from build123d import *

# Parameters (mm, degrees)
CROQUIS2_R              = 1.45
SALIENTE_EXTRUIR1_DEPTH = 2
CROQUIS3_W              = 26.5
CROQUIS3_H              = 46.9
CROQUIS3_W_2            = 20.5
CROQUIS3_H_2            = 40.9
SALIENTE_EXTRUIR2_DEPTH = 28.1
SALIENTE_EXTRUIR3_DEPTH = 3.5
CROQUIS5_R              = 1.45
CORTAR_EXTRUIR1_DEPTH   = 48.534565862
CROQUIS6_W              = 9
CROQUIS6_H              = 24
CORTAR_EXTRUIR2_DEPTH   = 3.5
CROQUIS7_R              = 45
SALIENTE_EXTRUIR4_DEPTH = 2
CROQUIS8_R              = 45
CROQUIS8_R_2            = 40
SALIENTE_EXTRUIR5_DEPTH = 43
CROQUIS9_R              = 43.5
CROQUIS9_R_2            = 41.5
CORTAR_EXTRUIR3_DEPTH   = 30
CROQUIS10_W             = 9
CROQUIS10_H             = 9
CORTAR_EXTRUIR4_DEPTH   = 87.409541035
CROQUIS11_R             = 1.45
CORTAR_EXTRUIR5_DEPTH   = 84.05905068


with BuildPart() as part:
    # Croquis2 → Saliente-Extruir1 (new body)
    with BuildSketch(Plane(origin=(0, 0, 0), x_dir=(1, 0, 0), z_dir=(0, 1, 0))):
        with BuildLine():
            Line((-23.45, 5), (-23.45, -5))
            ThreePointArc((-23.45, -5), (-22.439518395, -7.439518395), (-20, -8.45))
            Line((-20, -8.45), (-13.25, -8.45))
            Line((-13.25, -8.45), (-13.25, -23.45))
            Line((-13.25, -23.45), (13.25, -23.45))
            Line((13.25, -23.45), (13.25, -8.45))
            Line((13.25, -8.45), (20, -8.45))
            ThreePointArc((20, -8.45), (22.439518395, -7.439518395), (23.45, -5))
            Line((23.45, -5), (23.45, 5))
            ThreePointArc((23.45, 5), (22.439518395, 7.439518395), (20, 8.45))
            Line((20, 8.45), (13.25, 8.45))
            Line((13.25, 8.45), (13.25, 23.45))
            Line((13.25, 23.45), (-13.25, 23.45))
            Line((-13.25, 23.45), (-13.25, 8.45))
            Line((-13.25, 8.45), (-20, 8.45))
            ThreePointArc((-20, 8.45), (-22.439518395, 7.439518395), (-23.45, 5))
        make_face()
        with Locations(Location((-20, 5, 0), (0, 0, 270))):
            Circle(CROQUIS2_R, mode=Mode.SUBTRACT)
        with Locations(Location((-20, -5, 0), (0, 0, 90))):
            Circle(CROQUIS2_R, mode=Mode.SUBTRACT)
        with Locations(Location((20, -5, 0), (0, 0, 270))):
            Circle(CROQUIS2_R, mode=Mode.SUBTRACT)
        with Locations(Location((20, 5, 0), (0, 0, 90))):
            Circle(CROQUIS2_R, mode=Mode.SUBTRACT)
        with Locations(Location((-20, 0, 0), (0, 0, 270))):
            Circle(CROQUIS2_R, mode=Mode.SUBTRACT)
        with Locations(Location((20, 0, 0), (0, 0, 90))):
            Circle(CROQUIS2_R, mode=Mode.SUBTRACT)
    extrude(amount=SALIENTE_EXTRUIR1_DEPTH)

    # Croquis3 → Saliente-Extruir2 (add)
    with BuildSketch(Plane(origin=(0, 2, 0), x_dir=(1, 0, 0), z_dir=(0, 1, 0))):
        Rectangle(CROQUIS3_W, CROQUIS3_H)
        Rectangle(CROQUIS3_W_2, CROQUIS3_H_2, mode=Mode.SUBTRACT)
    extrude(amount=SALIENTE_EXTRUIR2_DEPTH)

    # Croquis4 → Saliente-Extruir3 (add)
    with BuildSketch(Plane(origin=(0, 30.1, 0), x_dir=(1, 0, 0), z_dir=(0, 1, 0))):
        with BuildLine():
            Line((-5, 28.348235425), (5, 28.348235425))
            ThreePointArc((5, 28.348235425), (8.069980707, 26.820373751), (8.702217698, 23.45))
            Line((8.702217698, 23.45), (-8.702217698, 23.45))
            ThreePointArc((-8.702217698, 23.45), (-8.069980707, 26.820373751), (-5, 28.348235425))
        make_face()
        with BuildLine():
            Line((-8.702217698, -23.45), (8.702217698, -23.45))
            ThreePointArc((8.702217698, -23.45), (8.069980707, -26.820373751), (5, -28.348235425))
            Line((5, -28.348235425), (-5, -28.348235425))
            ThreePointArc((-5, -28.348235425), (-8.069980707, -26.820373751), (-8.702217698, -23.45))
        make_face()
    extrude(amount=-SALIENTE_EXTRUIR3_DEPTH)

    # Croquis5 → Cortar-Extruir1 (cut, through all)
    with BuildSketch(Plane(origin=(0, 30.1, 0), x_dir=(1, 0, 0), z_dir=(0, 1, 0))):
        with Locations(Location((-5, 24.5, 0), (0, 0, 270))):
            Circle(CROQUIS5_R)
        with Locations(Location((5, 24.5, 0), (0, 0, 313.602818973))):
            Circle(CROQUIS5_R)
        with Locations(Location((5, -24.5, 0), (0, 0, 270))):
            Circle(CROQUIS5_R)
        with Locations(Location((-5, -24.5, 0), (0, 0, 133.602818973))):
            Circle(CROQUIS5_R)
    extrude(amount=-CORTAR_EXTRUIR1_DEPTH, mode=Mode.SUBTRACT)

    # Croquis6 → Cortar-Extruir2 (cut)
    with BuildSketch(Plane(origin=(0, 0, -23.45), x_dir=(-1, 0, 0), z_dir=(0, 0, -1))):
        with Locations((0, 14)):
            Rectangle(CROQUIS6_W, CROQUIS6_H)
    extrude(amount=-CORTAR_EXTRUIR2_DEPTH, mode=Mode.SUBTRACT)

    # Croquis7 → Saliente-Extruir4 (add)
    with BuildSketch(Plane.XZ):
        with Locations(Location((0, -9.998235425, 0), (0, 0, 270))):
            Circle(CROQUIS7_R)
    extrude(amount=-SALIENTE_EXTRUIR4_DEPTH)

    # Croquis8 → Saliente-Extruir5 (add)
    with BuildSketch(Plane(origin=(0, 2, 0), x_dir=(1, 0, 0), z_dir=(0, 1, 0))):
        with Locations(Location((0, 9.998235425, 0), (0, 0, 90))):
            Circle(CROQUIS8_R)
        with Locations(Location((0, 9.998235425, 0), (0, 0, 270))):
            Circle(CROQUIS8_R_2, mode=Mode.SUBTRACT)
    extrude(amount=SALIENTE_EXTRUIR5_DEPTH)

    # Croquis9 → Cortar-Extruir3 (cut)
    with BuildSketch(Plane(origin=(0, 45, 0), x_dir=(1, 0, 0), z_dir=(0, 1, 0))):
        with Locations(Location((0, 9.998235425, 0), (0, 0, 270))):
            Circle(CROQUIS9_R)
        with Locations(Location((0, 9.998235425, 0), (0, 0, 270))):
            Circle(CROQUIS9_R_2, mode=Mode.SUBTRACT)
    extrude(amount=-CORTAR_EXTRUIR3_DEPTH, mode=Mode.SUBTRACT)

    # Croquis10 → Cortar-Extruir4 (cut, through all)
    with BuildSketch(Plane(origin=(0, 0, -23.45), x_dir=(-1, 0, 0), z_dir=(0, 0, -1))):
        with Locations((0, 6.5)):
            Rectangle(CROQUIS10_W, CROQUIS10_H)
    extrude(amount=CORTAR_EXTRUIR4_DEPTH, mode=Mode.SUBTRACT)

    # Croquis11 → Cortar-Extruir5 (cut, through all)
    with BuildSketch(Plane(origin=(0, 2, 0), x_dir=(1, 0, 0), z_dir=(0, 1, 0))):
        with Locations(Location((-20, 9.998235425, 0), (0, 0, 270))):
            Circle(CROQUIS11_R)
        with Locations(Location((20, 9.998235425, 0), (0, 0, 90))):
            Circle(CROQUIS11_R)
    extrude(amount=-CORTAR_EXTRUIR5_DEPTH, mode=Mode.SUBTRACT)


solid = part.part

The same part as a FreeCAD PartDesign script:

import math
import FreeCAD as App
import Part
import Sketcher
Q = App.Units.Quantity


def add_polygon(sketch, points):
    """Adds a closed chain of lines whose ends are joined by coincident constraints."""
    first, n = sketch.GeometryCount, len(points)
    for a, b in zip(points, points[1:] + points[:1]):
        sketch.addGeometry(Part.LineSegment(App.Vector(*a, 0), App.Vector(*b, 0)), False)
    for i in range(n):
        sketch.addConstraint(Sketcher.Constraint("Coincident", first + i, 2, first + (i + 1) % n, 1))

doc = App.newDocument("Part")
params = doc.addObject("Spreadsheet::Sheet", "Params")
for row, (alias, value) in enumerate([
    ("sketch1_diameter", "2.9 mm"),
    ("sketch1_height", "10 mm"),
    ("sketch1_height2", "15 mm"),
    ("sketch1_radius", "3.45 mm"),
    ("sketch1_width", "26.5 mm"),
    ("pad1_length", "2 mm"),
    ("sketch2_width", "26.5 mm"),
    ("sketch2_width2", "20.5 mm"),
    ("sketch2_height", "46.9 mm"),
    ("sketch2_height2", "40.9 mm"),
    ("pad2_length", "28.1 mm"),
    ("sketch3_width", "10 mm"),
    ("pad3_length", "3.5 mm"),
    ("sketch4_diameter", "2.9 mm"),
    ("sketch5_width", "9 mm"),
    ("sketch5_height", "24 mm"),
    ("pocket2_length", "3.5 mm"),
    ("sketch6_diameter", "90 mm"),
    ("pad4_length", "2 mm"),
    ("sketch7_diameter", "90 mm"),
    ("sketch7_diameter2", "80 mm"),
    ("pad5_length", "43 mm"),
    ("sketch8_diameter", "87 mm"),
    ("sketch8_diameter2", "83 mm"),
    ("pocket3_length", "30 mm"),
    ("sketch9_width", "9 mm"),
    ("sketch10_diameter", "2.9 mm"),
], start=1):
    params.set(f"A{row}", alias)
    params.set(f"B{row}", "=" + value)
    params.setAlias(f"B{row}", alias)

body = doc.addObject("PartDesign::Body", "Body")

# Sketch on XZ plane
sketch1 = body.newObject("Sketcher::SketchObject", "Sketch")
sketch1.AttachmentSupport = (doc.getObject("XZ_Plane"), [""])
sketch1.MapMode = "FlatFace"
sketch1.addGeometry([
    Part.LineSegment(App.Vector(-23.4, -5, 0), App.Vector(-23.4, 5, 0)),  # 0
    Part.ArcOfCircle(Part.Circle(App.Vector(-20, 5, 0), App.Vector(0, 0, 1), 3.5), math.radians(90), math.radians(180)),  # 1
    Part.LineSegment(App.Vector(-20, 8.4, 0), App.Vector(-13.2, 8.4, 0)),  # 2
    Part.LineSegment(App.Vector(-13.2, 8.4, 0), App.Vector(-13.2, 23.4, 0)),  # 3
    Part.LineSegment(App.Vector(-13.2, 23.4, 0), App.Vector(13.2, 23.4, 0)),  # 4
    Part.LineSegment(App.Vector(13.2, 23.4, 0), App.Vector(13.2, 8.4, 0)),  # 5
    Part.LineSegment(App.Vector(13.2, 8.4, 0), App.Vector(20, 8.4, 0)),  # 6
    Part.ArcOfCircle(Part.Circle(App.Vector(20, 5, 0), App.Vector(0, 0, 1), 3.5), math.radians(0), math.radians(90)),  # 7
    Part.LineSegment(App.Vector(23.4, 5, 0), App.Vector(23.4, -5, 0)),  # 8
    Part.ArcOfCircle(Part.Circle(App.Vector(20, -5, 0), App.Vector(0, 0, 1), 3.5), math.radians(-90), math.radians(0)),  # 9
    Part.LineSegment(App.Vector(20, -8.4, 0), App.Vector(13.2, -8.4, 0)),  # 10
    Part.LineSegment(App.Vector(13.2, -8.4, 0), App.Vector(13.2, -23.4, 0)),  # 11
    Part.LineSegment(App.Vector(13.2, -23.4, 0), App.Vector(-13.2, -23.4, 0)),  # 12
    Part.LineSegment(App.Vector(-13.2, -23.4, 0), App.Vector(-13.2, -8.4, 0)),  # 13
    Part.LineSegment(App.Vector(-13.2, -8.4, 0), App.Vector(-20, -8.4, 0)),  # 14
    Part.ArcOfCircle(Part.Circle(App.Vector(-20, -5, 0), App.Vector(0, 0, 1), 3.5), math.radians(180), math.radians(270)),  # 15
    Part.Circle(App.Vector(-20, 5, 0), App.Vector(0, 0, 1), 1.4),  # 16
    Part.Circle(App.Vector(-20, 0, 0), App.Vector(0, 0, 1), 1.4),  # 17
    Part.Circle(App.Vector(20, 5, 0), App.Vector(0, 0, 1), 1.4),  # 18
    Part.Circle(App.Vector(20, 0, 0), App.Vector(0, 0, 1), 1.4),  # 19
    Part.Circle(App.Vector(-20, -5, 0), App.Vector(0, 0, 1), 1.4),  # 20
    Part.Circle(App.Vector(20, -5, 0), App.Vector(0, 0, 1), 1.4),  # 21
], False)
sketch1.addConstraint([
    Sketcher.Constraint("Tangent", 0, 2, 1, 2),
    Sketcher.Constraint("Tangent", 1, 1, 2, 1),
    Sketcher.Constraint("Coincident", 2, 2, 3, 1),
    Sketcher.Constraint("Coincident", 3, 2, 4, 1),
    Sketcher.Constraint("Coincident", 4, 2, 5, 1),
    Sketcher.Constraint("Coincident", 5, 2, 6, 1),
    Sketcher.Constraint("Tangent", 6, 2, 7, 2),
    Sketcher.Constraint("Tangent", 7, 1, 8, 1),
    Sketcher.Constraint("Tangent", 8, 2, 9, 2),
    Sketcher.Constraint("Tangent", 9, 1, 10, 1),
    Sketcher.Constraint("Coincident", 10, 2, 11, 1),
    Sketcher.Constraint("Coincident", 11, 2, 12, 1),
    Sketcher.Constraint("Coincident", 12, 2, 13, 1),
    Sketcher.Constraint("Coincident", 13, 2, 14, 1),
    Sketcher.Constraint("Tangent", 14, 2, 15, 2),
    Sketcher.Constraint("Tangent", 15, 1, 0, 1),
    Sketcher.Constraint("Vertical", 0),
    Sketcher.Constraint("Horizontal", 2),
    Sketcher.Constraint("Vertical", 3),
    Sketcher.Constraint("Horizontal", 4),
    Sketcher.Constraint("Vertical", 5),
    Sketcher.Constraint("Horizontal", 6),
    Sketcher.Constraint("Vertical", 8),
    Sketcher.Constraint("Horizontal", 10),
    Sketcher.Constraint("Vertical", 11),
    Sketcher.Constraint("Horizontal", 12),
    Sketcher.Constraint("Vertical", 13),
    Sketcher.Constraint("Horizontal", 14),
    Sketcher.Constraint("Coincident", 16, 3, 1, 3),
    Sketcher.Constraint("Coincident", 18, 3, 7, 3),
    Sketcher.Constraint("Coincident", 20, 3, 15, 3),
    Sketcher.Constraint("Coincident", 21, 3, 9, 3),
    Sketcher.Constraint("Equal", 1, 7),
    Sketcher.Constraint("Equal", 7, 9),
    Sketcher.Constraint("Equal", 9, 15),
    Sketcher.Constraint("Equal", 16, 17),
    Sketcher.Constraint("Equal", 17, 18),
    Sketcher.Constraint("Equal", 18, 19),
    Sketcher.Constraint("Equal", 19, 20),
    Sketcher.Constraint("Equal", 20, 21),
    Sketcher.Constraint("Symmetric", 1, 3, 9, 3, -1, 1),
    Sketcher.Constraint("Symmetric", 17, 3, 19, 3, -1, 1),
    Sketcher.Constraint("Symmetric", 3, 2, 11, 2, -1, 1),
    Sketcher.Constraint("Symmetric", 5, 2, 13, 2, -1, 1),
    Sketcher.Constraint("Symmetric", 2, 2, 5, 2, -2),
    Sketcher.Constraint("PointOnObject", 17, 3, -1),
    Sketcher.Constraint("Vertical", 16, 3, 17, 3),
    Sketcher.Constraint("Diameter", 16, Q("2.9 mm")),
    Sketcher.Constraint("DistanceY", 0, 1, 0, 2, Q("10 mm")),
    Sketcher.Constraint("DistanceY", 3, 1, 3, 2, Q("15 mm")),
    Sketcher.Constraint("Radius", 1, Q("3.45 mm")),
    Sketcher.Constraint("DistanceX", 4, 1, 4, 2, Q("26.5 mm")),
    Sketcher.Constraint("DistanceX", 1, 3, -1, 1, Q("20 mm")),
])
sketch1.setExpression("Constraints[47]", "Params.sketch1_diameter")
sketch1.setExpression("Constraints[48]", "Params.sketch1_height")
sketch1.setExpression("Constraints[49]", "Params.sketch1_height2")
sketch1.setExpression("Constraints[50]", "Params.sketch1_radius")
sketch1.setExpression("Constraints[51]", "Params.sketch1_width")
pad1 = body.newObject("PartDesign::Pad", "Pad")
pad1.Profile = sketch1
pad1.setExpression("Length", "Params.pad1_length")
pad1.Reversed = True

# Sketch on XZ plane
sketch2 = body.newObject("Sketcher::SketchObject", "Sketch001")
sketch2.AttachmentSupport = (doc.getObject("XZ_Plane"), [""])
sketch2.MapMode = "FlatFace"
sketch2.AttachmentOffset = App.Placement(App.Vector(0, 0, -2), App.Rotation())
add_polygon(sketch2, [(-13, -23), (-13, 23), (13, 23), (13, -23)])  # lines 0-3
add_polygon(sketch2, [(10, 20), (-10, 20), (-10, -20), (10, -20)])  # lines 4-7
sketch2.addConstraint([
    Sketcher.Constraint("Vertical", 0),
    Sketcher.Constraint("Horizontal", 1),
    Sketcher.Constraint("Vertical", 2),
    Sketcher.Constraint("Horizontal", 3),
    Sketcher.Constraint("Horizontal", 4),
    Sketcher.Constraint("Vertical", 5),
    Sketcher.Constraint("Horizontal", 6),
    Sketcher.Constraint("Vertical", 7),
    Sketcher.Constraint("Symmetric", 0, 2, 2, 2, -1, 1),
    Sketcher.Constraint("Symmetric", 4, 2, 6, 2, -1, 1),
    Sketcher.Constraint("DistanceX", 1, 1, 1, 2, Q("26.5 mm")),
    Sketcher.Constraint("DistanceX", 4, 2, 4, 1, Q("20.5 mm")),
    Sketcher.Constraint("DistanceY", 0, 1, 0, 2, Q("46.9 mm")),
    Sketcher.Constraint("DistanceY", 5, 2, 5, 1, Q("40.9 mm")),
])
sketch2.setExpression("Constraints[18]", "Params.sketch2_width")
sketch2.setExpression("Constraints[19]", "Params.sketch2_width2")
sketch2.setExpression("Constraints[20]", "Params.sketch2_height")
sketch2.setExpression("Constraints[21]", "Params.sketch2_height2")
pad2 = body.newObject("PartDesign::Pad", "Pad001")
pad2.Profile = sketch2
pad2.setExpression("Length", "Params.pad2_length")
pad2.Reversed = True

# Sketch on XZ plane
sketch3 = body.newObject("Sketcher::SketchObject", "Sketch002")
sketch3.AttachmentSupport = (doc.getObject("XZ_Plane"), [""])
sketch3.MapMode = "FlatFace"
sketch3.AttachmentOffset = App.Placement(App.Vector(0, 0, -30.1), App.Rotation())
sketch3.addGeometry([
    Part.LineSegment(App.Vector(5, -28.3, 0), App.Vector(-5, -28.3, 0)),  # 0
    Part.ArcOfCircle(Part.Circle(App.Vector(-5, -24.5, 0), App.Vector(0, 0, 1), 3.8), math.radians(164), math.radians(270)),  # 1
    Part.LineSegment(App.Vector(-8.7, -23.4, 0), App.Vector(8.7, -23.4, 0)),  # 2
    Part.ArcOfCircle(Part.Circle(App.Vector(5, -24.5, 0), App.Vector(0, 0, 1), 3.8), math.radians(-90), math.radians(16)),  # 3
    Part.LineSegment(App.Vector(8.7, 23.4, 0), App.Vector(-8.7, 23.4, 0)),  # 4
    Part.ArcOfCircle(Part.Circle(App.Vector(-5, 24.5, 0), App.Vector(0, 0, 1), 3.8), math.radians(90), math.radians(196)),  # 5
    Part.LineSegment(App.Vector(-5, 28.3, 0), App.Vector(5, 28.3, 0)),  # 6
    Part.ArcOfCircle(Part.Circle(App.Vector(5, 24.5, 0), App.Vector(0, 0, 1), 3.8), math.radians(-16), math.radians(90)),  # 7
], False)
sketch3.addConstraint([
    Sketcher.Constraint("Tangent", 0, 2, 1, 2),
    Sketcher.Constraint("Coincident", 1, 1, 2, 1),
    Sketcher.Constraint("Coincident", 2, 2, 3, 2),
    Sketcher.Constraint("Tangent", 3, 1, 0, 1),
    Sketcher.Constraint("Coincident", 4, 2, 5, 2),
    Sketcher.Constraint("Tangent", 5, 1, 6, 1),
    Sketcher.Constraint("Tangent", 6, 2, 7, 2),
    Sketcher.Constraint("Coincident", 7, 1, 4, 1),
    Sketcher.Constraint("Horizontal", 0),
    Sketcher.Constraint("Horizontal", 2),
    Sketcher.Constraint("Horizontal", 4),
    Sketcher.Constraint("Horizontal", 6),
    Sketcher.Constraint("Equal", 1, 3),
    Sketcher.Constraint("Equal", 3, 5),
    Sketcher.Constraint("Equal", 5, 7),
    Sketcher.Constraint("Symmetric", 3, 3, 5, 3, -1, 1),
    Sketcher.Constraint("Symmetric", 1, 1, 7, 1, -1, 1),
    Sketcher.Constraint("Vertical", 1, 3, 5, 3),
    Sketcher.Constraint("DistanceX", 0, 2, 0, 1, Q("10 mm")),
    Sketcher.Constraint("DistanceY", 1, 3, 5, 3, Q("49 mm")),
    Sketcher.Constraint("DistanceY", 1, 1, 4, 2, Q("46.9 mm")),
    Sketcher.Constraint("Radius", 1, Q("3.848235 mm")),
])
sketch3.setExpression("Constraints[18]", "Params.sketch3_width")
pad3 = body.newObject("PartDesign::Pad", "Pad002")
pad3.Profile = sketch3
pad3.setExpression("Length", "Params.pad3_length")

# Sketch on XZ plane
sketch4 = body.newObject("Sketcher::SketchObject", "Sketch003")
sketch4.AttachmentSupport = (doc.getObject("XZ_Plane"), [""])
sketch4.MapMode = "FlatFace"
sketch4.AttachmentOffset = App.Placement(App.Vector(0, 0, -30.1), App.Rotation())
sketch4.addGeometry([
    Part.Circle(App.Vector(-5, -24.5, 0), App.Vector(0, 0, 1), 1.4),
    Part.Circle(App.Vector(5, -24.5, 0), App.Vector(0, 0, 1), 1.4),
    Part.Circle(App.Vector(5, 24.5, 0), App.Vector(0, 0, 1), 1.4),
    Part.Circle(App.Vector(-5, 24.5, 0), App.Vector(0, 0, 1), 1.4),
], False)
sketch4.addConstraint([
    Sketcher.Constraint("Equal", 0, 1),
    Sketcher.Constraint("Equal", 1, 2),
    Sketcher.Constraint("Equal", 2, 3),
    Sketcher.Constraint("Symmetric", 0, 3, 2, 3, -1, 1),
    Sketcher.Constraint("Symmetric", 1, 3, 3, 3, -1, 1),
    Sketcher.Constraint("Symmetric", 0, 3, 1, 3, -2),
    Sketcher.Constraint("Diameter", 0, Q("2.9 mm")),
    Sketcher.Constraint("DistanceX", 0, 3, -1, 1, Q("5 mm")),
    Sketcher.Constraint("DistanceY", 1, 3, 2, 3, Q("49 mm")),
])
sketch4.setExpression("Constraints[6]", "Params.sketch4_diameter")
pocket1 = body.newObject("PartDesign::Pocket", "Pocket")
pocket1.Profile = sketch4
pocket1.Type = "ThroughAll"
pocket1.Reversed = True

# Sketch on XY plane
sketch5 = body.newObject("Sketcher::SketchObject", "Sketch004")
sketch5.AttachmentSupport = (doc.getObject("XY_Plane"), [""])
sketch5.MapMode = "FlatFace"
sketch5.AttachmentOffset = App.Placement(App.Vector(0, 0, -23.45), App.Rotation())
add_polygon(sketch5, [(4, 26), (4, 2), (-4, 2), (-4, 26)])  # lines 0-3
sketch5.addConstraint([
    Sketcher.Constraint("Vertical", 0),
    Sketcher.Constraint("Horizontal", 1),
    Sketcher.Constraint("Vertical", 2),
    Sketcher.Constraint("Horizontal", 3),
    Sketcher.Constraint("DistanceX", 1, 2, 1, 1, Q("9 mm")),
    Sketcher.Constraint("DistanceY", 0, 2, 0, 1, Q("24 mm")),
    Sketcher.Constraint("DistanceY", -1, 1, 0, 2, Q("2 mm")),
    Sketcher.Constraint("DistanceX", -1, 1, 0, 2, Q("4.5 mm")),
])
sketch5.setExpression("Constraints[8]", "Params.sketch5_width")
sketch5.setExpression("Constraints[9]", "Params.sketch5_height")
pocket2 = body.newObject("PartDesign::Pocket", "Pocket001")
pocket2.Profile = sketch5
pocket2.setExpression("Length", "Params.pocket2_length")
pocket2.Reversed = True

# Sketch on XZ plane
sketch6 = body.newObject("Sketcher::SketchObject", "Sketch005")
sketch6.AttachmentSupport = (doc.getObject("XZ_Plane"), [""])
sketch6.MapMode = "FlatFace"
sketch6.addGeometry(Part.Circle(App.Vector(0, -10, 0), App.Vector(0, 0, 1), 45), False)
sketch6.addConstraint([
    Sketcher.Constraint("PointOnObject", 0, 3, -2),
    Sketcher.Constraint("Diameter", 0, Q("90 mm")),
    Sketcher.Constraint("DistanceY", 0, 3, -1, 1, Q("9.998235 mm")),
])
sketch6.setExpression("Constraints[1]", "Params.sketch6_diameter")
pad4 = body.newObject("PartDesign::Pad", "Pad003")
pad4.Profile = sketch6
pad4.setExpression("Length", "Params.pad4_length")
pad4.Reversed = True

# Sketch on XZ plane
sketch7 = body.newObject("Sketcher::SketchObject", "Sketch006")
sketch7.AttachmentSupport = (doc.getObject("XZ_Plane"), [""])
sketch7.MapMode = "FlatFace"
sketch7.AttachmentOffset = App.Placement(App.Vector(0, 0, -2), App.Rotation())
sketch7.addGeometry([
    Part.Circle(App.Vector(0, -10, 0), App.Vector(0, 0, 1), 45),
    Part.Circle(App.Vector(0, -10, 0), App.Vector(0, 0, 1), 40),
], False)
sketch7.addConstraint([
    Sketcher.Constraint("Coincident", 1, 3, 0, 3),
    Sketcher.Constraint("PointOnObject", 0, 3, -2),
    Sketcher.Constraint("Diameter", 0, Q("90 mm")),
    Sketcher.Constraint("Diameter", 1, Q("80 mm")),
    Sketcher.Constraint("DistanceY", 0, 3, -1, 1, Q("9.998235 mm")),
])
sketch7.setExpression("Constraints[2]", "Params.sketch7_diameter")
sketch7.setExpression("Constraints[3]", "Params.sketch7_diameter2")
pad5 = body.newObject("PartDesign::Pad", "Pad004")
pad5.Profile = sketch7
pad5.setExpression("Length", "Params.pad5_length")
pad5.Reversed = True

# Sketch on XZ plane
sketch8 = body.newObject("Sketcher::SketchObject", "Sketch007")
sketch8.AttachmentSupport = (doc.getObject("XZ_Plane"), [""])
sketch8.MapMode = "FlatFace"
sketch8.AttachmentOffset = App.Placement(App.Vector(0, 0, -45), App.Rotation())
sketch8.addGeometry([
    Part.Circle(App.Vector(0, -10, 0), App.Vector(0, 0, 1), 44),
    Part.Circle(App.Vector(0, -10, 0), App.Vector(0, 0, 1), 42),
], False)
sketch8.addConstraint([
    Sketcher.Constraint("Coincident", 1, 3, 0, 3),
    Sketcher.Constraint("PointOnObject", 0, 3, -2),
    Sketcher.Constraint("Diameter", 0, Q("87 mm")),
    Sketcher.Constraint("Diameter", 1, Q("83 mm")),
    Sketcher.Constraint("DistanceY", 0, 3, -1, 1, Q("9.998235 mm")),
])
sketch8.setExpression("Constraints[2]", "Params.sketch8_diameter")
sketch8.setExpression("Constraints[3]", "Params.sketch8_diameter2")
pocket3 = body.newObject("PartDesign::Pocket", "Pocket002")
pocket3.Profile = sketch8
pocket3.setExpression("Length", "Params.pocket3_length")
pocket3.Reversed = True

# Sketch on XY plane
sketch9 = body.newObject("Sketcher::SketchObject", "Sketch008")
sketch9.AttachmentSupport = (doc.getObject("XY_Plane"), [""])
sketch9.MapMode = "FlatFace"
sketch9.AttachmentOffset = App.Placement(App.Vector(0, 0, -23.45), App.Rotation())
add_polygon(sketch9, [(4, 11), (4, 2), (-4, 2), (-4, 11)])  # lines 0-3
sketch9.addConstraint([
    Sketcher.Constraint("Vertical", 0),
    Sketcher.Constraint("Horizontal", 1),
    Sketcher.Constraint("Vertical", 2),
    Sketcher.Constraint("Horizontal", 3),
    Sketcher.Constraint("Equal", 3, 0),
    Sketcher.Constraint("DistanceX", 1, 2, 1, 1, Q("9 mm")),
    Sketcher.Constraint("DistanceY", -1, 1, 0, 2, Q("2 mm")),
    Sketcher.Constraint("DistanceX", -1, 1, 0, 2, Q("4.5 mm")),
])
sketch9.setExpression("Constraints[9]", "Params.sketch9_width")
pocket4 = body.newObject("PartDesign::Pocket", "Pocket003")
pocket4.Profile = sketch9
pocket4.Type = "ThroughAll"

# Sketch on XZ plane
sketch10 = body.newObject("Sketcher::SketchObject", "Sketch009")
sketch10.AttachmentSupport = (doc.getObject("XZ_Plane"), [""])
sketch10.MapMode = "FlatFace"
sketch10.AttachmentOffset = App.Placement(App.Vector(0, 0, -2), App.Rotation())
sketch10.addGeometry([
    Part.Circle(App.Vector(-20, -10, 0), App.Vector(0, 0, 1), 1.4),
    Part.Circle(App.Vector(20, -10, 0), App.Vector(0, 0, 1), 1.4),
], False)
sketch10.addConstraint([
    Sketcher.Constraint("Equal", 0, 1),
    Sketcher.Constraint("Symmetric", 0, 3, 1, 3, -2),
    Sketcher.Constraint("Diameter", 0, Q("2.9 mm")),
    Sketcher.Constraint("DistanceX", 0, 3, -1, 1, Q("20 mm")),
    Sketcher.Constraint("DistanceY", 0, 3, -1, 1, Q("9.998235 mm")),
])
sketch10.setExpression("Constraints[2]", "Params.sketch10_diameter")
pocket5 = body.newObject("PartDesign::Pocket", "Pocket004")
pocket5.Profile = sketch10
pocket5.Type = "ThroughAll"
pocket5.Reversed = True

doc.recompute()
